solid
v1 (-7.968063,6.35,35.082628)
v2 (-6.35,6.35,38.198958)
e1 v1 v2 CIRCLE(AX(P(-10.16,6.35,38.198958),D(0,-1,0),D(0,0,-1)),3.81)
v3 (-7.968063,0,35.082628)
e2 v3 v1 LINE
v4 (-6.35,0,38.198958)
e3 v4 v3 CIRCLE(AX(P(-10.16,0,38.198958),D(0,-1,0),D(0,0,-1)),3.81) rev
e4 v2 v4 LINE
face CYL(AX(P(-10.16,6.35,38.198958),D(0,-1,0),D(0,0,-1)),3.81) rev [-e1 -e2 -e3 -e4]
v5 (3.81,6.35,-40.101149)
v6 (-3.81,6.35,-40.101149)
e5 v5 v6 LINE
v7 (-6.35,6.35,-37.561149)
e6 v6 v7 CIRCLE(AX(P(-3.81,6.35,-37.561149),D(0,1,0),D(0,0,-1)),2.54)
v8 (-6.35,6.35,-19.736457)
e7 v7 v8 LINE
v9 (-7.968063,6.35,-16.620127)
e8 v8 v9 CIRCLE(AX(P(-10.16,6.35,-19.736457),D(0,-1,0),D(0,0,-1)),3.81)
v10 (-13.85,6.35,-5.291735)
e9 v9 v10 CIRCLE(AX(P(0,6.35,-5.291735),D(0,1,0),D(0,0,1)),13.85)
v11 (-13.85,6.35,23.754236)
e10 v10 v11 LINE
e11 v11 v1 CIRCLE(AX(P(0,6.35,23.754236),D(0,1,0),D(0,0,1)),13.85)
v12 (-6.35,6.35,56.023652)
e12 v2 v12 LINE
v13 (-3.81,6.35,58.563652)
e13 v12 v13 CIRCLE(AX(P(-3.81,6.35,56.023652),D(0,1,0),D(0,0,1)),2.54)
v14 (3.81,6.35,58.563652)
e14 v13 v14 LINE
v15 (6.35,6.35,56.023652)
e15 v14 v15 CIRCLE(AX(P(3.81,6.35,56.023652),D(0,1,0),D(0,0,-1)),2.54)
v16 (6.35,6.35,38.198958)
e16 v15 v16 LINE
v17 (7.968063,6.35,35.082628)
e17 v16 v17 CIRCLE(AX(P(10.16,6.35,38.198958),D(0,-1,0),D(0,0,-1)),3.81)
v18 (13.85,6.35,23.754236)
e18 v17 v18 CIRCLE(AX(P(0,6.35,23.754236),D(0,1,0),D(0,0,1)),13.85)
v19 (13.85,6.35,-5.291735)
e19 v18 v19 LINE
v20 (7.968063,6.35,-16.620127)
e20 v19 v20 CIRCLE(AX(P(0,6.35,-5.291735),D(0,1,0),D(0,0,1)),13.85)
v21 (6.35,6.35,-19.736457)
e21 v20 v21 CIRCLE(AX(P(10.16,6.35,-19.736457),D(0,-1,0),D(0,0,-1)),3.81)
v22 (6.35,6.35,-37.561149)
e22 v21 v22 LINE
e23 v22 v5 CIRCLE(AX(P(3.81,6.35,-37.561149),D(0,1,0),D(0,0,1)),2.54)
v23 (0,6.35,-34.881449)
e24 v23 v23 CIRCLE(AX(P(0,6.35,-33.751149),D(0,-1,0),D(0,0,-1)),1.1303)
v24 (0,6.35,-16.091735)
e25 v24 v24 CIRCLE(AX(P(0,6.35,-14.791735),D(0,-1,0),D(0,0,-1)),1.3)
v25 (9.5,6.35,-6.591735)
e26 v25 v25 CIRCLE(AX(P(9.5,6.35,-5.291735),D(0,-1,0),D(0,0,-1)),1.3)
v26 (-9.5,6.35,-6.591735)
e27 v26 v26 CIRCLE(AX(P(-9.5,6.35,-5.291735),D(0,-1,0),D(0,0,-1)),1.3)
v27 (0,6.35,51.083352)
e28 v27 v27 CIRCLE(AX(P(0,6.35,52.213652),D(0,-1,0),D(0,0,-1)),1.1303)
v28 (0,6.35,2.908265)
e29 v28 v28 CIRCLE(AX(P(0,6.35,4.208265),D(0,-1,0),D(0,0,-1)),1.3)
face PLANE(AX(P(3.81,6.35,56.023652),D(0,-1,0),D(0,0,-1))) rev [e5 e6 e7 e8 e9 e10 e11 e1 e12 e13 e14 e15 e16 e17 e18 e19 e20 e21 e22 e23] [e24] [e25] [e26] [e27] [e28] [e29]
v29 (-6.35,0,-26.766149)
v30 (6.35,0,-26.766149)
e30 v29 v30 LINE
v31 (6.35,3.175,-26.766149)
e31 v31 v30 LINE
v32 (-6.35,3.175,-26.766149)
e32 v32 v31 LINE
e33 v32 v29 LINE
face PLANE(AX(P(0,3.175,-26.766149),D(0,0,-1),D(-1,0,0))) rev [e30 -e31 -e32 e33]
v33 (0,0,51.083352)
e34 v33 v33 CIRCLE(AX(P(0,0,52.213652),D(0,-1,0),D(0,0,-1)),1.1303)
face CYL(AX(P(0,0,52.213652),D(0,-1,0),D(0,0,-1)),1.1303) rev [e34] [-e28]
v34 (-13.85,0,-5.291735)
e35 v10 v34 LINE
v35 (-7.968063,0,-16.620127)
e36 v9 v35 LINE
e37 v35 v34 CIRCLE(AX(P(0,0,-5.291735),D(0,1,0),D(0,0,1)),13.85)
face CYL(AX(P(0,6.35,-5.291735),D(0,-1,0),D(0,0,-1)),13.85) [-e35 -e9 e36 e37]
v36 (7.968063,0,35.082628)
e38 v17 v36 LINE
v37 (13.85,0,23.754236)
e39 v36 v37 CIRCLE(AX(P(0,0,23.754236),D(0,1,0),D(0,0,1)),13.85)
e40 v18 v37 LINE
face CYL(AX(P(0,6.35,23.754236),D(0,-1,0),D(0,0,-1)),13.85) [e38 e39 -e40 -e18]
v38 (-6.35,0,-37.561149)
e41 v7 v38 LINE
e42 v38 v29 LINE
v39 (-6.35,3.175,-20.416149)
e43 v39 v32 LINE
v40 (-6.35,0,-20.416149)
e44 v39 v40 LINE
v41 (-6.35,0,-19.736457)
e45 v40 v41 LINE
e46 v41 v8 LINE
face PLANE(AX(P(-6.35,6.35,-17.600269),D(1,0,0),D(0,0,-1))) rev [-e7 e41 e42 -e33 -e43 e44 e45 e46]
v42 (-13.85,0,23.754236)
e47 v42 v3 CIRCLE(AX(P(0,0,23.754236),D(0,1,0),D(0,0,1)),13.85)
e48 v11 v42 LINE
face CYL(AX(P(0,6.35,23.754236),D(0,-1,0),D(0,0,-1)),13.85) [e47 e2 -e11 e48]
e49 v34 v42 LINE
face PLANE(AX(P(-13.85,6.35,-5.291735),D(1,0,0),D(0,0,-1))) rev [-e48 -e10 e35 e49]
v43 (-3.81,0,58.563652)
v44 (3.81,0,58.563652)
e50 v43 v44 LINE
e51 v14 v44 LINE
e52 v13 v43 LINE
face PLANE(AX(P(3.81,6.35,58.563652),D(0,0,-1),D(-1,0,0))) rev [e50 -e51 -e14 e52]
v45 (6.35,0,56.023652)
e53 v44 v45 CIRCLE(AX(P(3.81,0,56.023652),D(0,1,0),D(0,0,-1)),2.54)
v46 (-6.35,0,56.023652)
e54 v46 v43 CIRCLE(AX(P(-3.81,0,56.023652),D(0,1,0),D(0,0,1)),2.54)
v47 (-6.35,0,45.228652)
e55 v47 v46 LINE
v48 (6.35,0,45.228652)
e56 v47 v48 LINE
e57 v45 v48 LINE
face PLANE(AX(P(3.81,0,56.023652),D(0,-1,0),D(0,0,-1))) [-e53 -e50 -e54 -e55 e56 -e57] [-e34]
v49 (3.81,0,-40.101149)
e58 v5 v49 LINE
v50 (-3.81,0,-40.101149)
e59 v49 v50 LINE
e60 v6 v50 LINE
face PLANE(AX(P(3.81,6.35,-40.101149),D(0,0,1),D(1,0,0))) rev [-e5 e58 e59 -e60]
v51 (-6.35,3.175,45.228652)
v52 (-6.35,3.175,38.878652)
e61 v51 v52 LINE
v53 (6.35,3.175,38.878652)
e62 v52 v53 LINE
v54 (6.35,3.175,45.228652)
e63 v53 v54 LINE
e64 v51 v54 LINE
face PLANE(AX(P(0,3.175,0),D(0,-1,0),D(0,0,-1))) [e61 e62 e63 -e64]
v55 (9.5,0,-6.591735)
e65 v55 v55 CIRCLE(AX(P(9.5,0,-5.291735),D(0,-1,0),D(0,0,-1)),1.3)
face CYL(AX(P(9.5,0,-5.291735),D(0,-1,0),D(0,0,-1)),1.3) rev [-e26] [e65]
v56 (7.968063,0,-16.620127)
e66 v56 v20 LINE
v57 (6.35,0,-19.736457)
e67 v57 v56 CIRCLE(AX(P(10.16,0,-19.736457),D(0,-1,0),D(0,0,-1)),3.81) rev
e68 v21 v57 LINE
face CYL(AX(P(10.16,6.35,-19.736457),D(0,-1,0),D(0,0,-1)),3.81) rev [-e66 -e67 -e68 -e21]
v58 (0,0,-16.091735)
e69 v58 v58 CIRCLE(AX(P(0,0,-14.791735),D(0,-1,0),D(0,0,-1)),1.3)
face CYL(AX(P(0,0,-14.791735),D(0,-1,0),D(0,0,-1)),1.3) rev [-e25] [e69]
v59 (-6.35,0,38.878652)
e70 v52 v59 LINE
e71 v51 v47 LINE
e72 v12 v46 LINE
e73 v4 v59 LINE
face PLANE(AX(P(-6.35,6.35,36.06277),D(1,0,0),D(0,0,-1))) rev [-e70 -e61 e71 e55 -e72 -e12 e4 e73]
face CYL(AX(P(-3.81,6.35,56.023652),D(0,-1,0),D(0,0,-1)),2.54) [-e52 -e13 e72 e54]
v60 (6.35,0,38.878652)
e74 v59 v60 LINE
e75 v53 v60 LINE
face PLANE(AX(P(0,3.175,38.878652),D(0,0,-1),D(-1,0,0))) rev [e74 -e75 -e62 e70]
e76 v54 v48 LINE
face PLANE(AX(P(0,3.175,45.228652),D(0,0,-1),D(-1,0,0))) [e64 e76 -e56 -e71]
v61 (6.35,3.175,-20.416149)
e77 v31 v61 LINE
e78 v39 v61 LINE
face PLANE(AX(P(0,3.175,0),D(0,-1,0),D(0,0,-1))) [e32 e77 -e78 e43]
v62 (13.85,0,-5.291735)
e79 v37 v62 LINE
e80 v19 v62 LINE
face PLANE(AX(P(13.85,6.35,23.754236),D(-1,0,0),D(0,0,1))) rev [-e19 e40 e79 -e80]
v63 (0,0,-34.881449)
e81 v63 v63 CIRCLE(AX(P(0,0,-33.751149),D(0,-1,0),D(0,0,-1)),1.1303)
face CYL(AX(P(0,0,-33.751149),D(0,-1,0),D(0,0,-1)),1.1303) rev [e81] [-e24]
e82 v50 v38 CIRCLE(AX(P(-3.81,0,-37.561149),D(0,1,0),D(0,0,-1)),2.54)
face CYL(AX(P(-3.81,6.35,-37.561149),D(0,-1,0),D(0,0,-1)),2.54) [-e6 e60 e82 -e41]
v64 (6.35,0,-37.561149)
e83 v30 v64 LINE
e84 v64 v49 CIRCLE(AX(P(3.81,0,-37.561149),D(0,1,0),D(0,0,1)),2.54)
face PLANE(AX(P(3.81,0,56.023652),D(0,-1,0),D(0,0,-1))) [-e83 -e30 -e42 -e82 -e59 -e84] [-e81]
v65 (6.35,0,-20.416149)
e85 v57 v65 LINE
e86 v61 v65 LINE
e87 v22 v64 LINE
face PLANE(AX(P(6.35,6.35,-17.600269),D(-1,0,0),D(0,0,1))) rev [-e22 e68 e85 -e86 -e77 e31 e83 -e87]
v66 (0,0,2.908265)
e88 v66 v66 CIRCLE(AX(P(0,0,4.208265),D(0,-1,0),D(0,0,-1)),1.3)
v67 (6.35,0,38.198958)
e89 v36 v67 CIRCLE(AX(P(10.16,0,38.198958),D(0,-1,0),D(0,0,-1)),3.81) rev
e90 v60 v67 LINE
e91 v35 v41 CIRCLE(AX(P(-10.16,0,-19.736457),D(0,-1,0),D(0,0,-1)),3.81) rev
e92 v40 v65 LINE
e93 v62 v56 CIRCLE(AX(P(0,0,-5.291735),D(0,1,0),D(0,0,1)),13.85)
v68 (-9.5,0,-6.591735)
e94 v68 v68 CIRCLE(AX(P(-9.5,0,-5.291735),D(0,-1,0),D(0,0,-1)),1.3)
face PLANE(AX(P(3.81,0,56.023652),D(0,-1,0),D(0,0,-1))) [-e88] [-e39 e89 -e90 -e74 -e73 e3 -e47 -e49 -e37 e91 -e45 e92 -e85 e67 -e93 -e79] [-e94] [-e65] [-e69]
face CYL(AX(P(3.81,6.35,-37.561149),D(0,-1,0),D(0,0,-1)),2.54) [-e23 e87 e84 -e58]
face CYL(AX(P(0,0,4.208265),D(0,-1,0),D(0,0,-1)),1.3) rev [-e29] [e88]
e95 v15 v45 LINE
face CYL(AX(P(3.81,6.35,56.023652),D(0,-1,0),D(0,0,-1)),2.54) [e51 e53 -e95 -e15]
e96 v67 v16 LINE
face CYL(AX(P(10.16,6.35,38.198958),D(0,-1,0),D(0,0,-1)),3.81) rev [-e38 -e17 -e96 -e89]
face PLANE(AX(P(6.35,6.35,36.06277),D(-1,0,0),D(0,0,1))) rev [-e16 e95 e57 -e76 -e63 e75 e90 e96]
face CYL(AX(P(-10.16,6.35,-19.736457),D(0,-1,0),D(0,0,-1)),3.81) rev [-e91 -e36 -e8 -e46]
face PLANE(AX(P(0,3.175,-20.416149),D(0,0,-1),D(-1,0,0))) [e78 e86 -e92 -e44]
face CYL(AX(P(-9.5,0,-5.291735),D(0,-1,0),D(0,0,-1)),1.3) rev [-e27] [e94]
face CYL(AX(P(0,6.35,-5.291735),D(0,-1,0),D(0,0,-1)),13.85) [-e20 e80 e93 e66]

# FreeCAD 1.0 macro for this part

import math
import FreeCAD as App
import Part
import Sketcher

V = App.Vector
Q = App.Units.Quantity


def edges_at(feature, points):
    """Names of the edges that pass closest to the given points."""
    edges = feature.Shape.Edges
    near = lambda p: min(range(len(edges)), key=lambda i: edges[i].distToShape(Part.Vertex(*p))[0])
    return sorted({f"Edge{near(p) + 1}" for p in points})


def add_polygon(sketch, points):
    """Adds a closed chain of lines whose ends are joined by coincident constraints."""
    first, n = sketch.GeometryCount, len(points)
    for a, b in zip(points, points[1:] + points[:1]):
        sketch.addGeometry(Part.LineSegment(App.Vector(*a, 0), App.Vector(*b, 0)), False)
    for i in range(n):
        sketch.addConstraint(Sketcher.Constraint("Coincident", first + i, 2, first + (i + 1) % n, 1))

doc = App.newDocument("Part")
body = doc.addObject("PartDesign::Body", "Body")

# Sketch on XZ plane
sketch1 = doc.addObject("Sketcher::SketchObject", "Sketch")
body.addObject(sketch1)
sketch1.AttachmentSupport = (doc.XZ_Plane, [""])
sketch1.MapMode = "FlatFace"
sketch1.addGeometry(Part.LineSegment(V(13.9, 23.8, 0), V(13.9, -5.3, 0)), False)
sketch1.addGeometry(Part.ArcOfCircle(Part.Circle(V(0, -5.3, 0), V(0, 0, 1), 13.9), math.radians(-63), math.radians(0)), False)
sketch1.addGeometry(Part.LineSegment(V(6.3, -17.6, 0), V(6.3, -37.6, 0)), False)
sketch1.addGeometry(Part.ArcOfCircle(Part.Circle(V(3.8, -37.6, 0), V(0, 0, 1), 2.5), math.radians(-90), math.radians(0)), False)
sketch1.addGeometry(Part.LineSegment(V(3.8, -40.1, 0), V(-3.8, -40.1, 0)), False)
sketch1.addGeometry(Part.ArcOfCircle(Part.Circle(V(-3.8, -37.6, 0), V(0, 0, 1), 2.5), math.radians(-180), math.radians(-90)), False)
sketch1.addGeometry(Part.LineSegment(V(-6.3, -37.6, 0), V(-6.3, -17.6, 0)), False)
sketch1.addGeometry(Part.ArcOfCircle(Part.Circle(V(0, -5.3, 0), V(0, 0, 1), 13.9), math.radians(-180), math.radians(-117)), False)
sketch1.addGeometry(Part.LineSegment(V(-13.9, -5.3, 0), V(-13.9, 23.8, 0)), False)
sketch1.addGeometry(Part.ArcOfCircle(Part.Circle(V(0, 23.8, 0), V(0, 0, 1), 13.9), math.radians(117), math.radians(180)), False)
sketch1.addGeometry(Part.LineSegment(V(-6.3, 36.1, 0), V(-6.3, 56, 0)), False)
sketch1.addGeometry(Part.ArcOfCircle(Part.Circle(V(-3.8, 56, 0), V(0, 0, 1), 2.5), math.radians(90), math.radians(180)), False)
sketch1.addGeometry(Part.LineSegment(V(-3.8, 58.6, 0), V(3.8, 58.6, 0)), False)
sketch1.addGeometry(Part.ArcOfCircle(Part.Circle(V(3.8, 56, 0), V(0, 0, 1), 2.5), math.radians(0), math.radians(90)), False)
sketch1.addGeometry(Part.LineSegment(V(6.3, 56, 0), V(6.3, 36.1, 0)), False)
sketch1.addGeometry(Part.ArcOfCircle(Part.Circle(V(0, 23.8, 0), V(0, 0, 1), 13.9), math.radians(0), math.radians(63)), False)
sketch1.addConstraint(Sketcher.Constraint("Tangent", 0, 2, 1, 2))
sketch1.addConstraint(Sketcher.Constraint("Coincident", 1, 1, 2, 1))
sketch1.addConstraint(Sketcher.Constraint("Tangent", 2, 2, 3, 2))
sketch1.addConstraint(Sketcher.Constraint("Tangent", 3, 1, 4, 1))
sketch1.addConstraint(Sketcher.Constraint("Tangent", 4, 2, 5, 2))
sketch1.addConstraint(Sketcher.Constraint("Tangent", 5, 1, 6, 1))
sketch1.addConstraint(Sketcher.Constraint("Coincident", 6, 2, 7, 2))
sketch1.addConstraint(Sketcher.Constraint("Tangent", 7, 1, 8, 1))
sketch1.addConstraint(Sketcher.Constraint("Tangent", 8, 2, 9, 2))
sketch1.addConstraint(Sketcher.Constraint("Coincident", 9, 1, 10, 1))
sketch1.addConstraint(Sketcher.Constraint("Tangent", 10, 2, 11, 2))
sketch1.addConstraint(Sketcher.Constraint("Tangent", 11, 1, 12, 1))
sketch1.addConstraint(Sketcher.Constraint("Tangent", 12, 2, 13, 2))
sketch1.addConstraint(Sketcher.Constraint("Tangent", 13, 1, 14, 1))
sketch1.addConstraint(Sketcher.Constraint("Coincident", 14, 2, 15, 2))
sketch1.addConstraint(Sketcher.Constraint("Tangent", 15, 1, 0, 1))
sketch1.addConstraint(Sketcher.Constraint("Vertical", 0))
sketch1.addConstraint(Sketcher.Constraint("Vertical", 2))
sketch1.addConstraint(Sketcher.Constraint("Horizontal", 4))
sketch1.addConstraint(Sketcher.Constraint("Vertical", 6))
sketch1.addConstraint(Sketcher.Constraint("Vertical", 8))
sketch1.addConstraint(Sketcher.Constraint("Vertical", 10))
sketch1.addConstraint(Sketcher.Constraint("Horizontal", 12))
sketch1.addConstraint(Sketcher.Constraint("Vertical", 14))
sketch1.addConstraint(Sketcher.Constraint("Coincident", 7, 3, 1, 3))
sketch1.addConstraint(Sketcher.Constraint("Coincident", 15, 3, 9, 3))
sketch1.addConstraint(Sketcher.Constraint("Equal", 3, 5))
sketch1.addConstraint(Sketcher.Constraint("Equal", 1, 7))
sketch1.addConstraint(Sketcher.Constraint("Equal", 7, 9))
sketch1.addConstraint(Sketcher.Constraint("Equal", 5, 11))
sketch1.addConstraint(Sketcher.Constraint("Equal", 11, 13))
sketch1.addConstraint(Sketcher.Constraint("Symmetric", 1, 1, 6, 2, -2))
sketch1.addConstraint(Sketcher.Constraint("Horizontal", 9, 1, 14, 2))
sketch1.addConstraint(Sketcher.Constraint("Vertical", 5, 3, 11, 3))
sketch1.addConstraint(Sketcher.Constraint("Equal", 6, 10))
sketch1.addConstraint(Sketcher.Constraint("Radius", 3, Q("0.1 in")))
sketch1.addConstraint(Sketcher.Constraint("DistanceX", 4, 2, 4, 1, Q("0.3 in")))
sketch1.addConstraint(Sketcher.Constraint("Radius", 1, 13.85))
sketch1.addConstraint(Sketcher.Constraint("DistanceY", 0, 2, 0, 1, 29.045971))
sketch1.addConstraint(Sketcher.Constraint("DistanceY", 2, 2, 2, 1, 19.960881))
sketch1.addConstraint(Sketcher.Constraint("DistanceY", 3, 3, -1, 1, 37.561149))
pad1 = doc.addObject("PartDesign::Pad", "Pad")
body.addObject(pad1)
pad1.Profile = sketch1
pad1.Length = Q("0.25 in")
pad1.Reversed = True

# Sketch on XZ plane
sketch2 = doc.addObject("Sketcher::SketchObject", "Sketch001")
body.addObject(sketch2)
sketch2.AttachmentSupport = (doc.XZ_Plane, [""])
sketch2.MapMode = "FlatFace"
add_polygon(sketch2, [(-6, -20), (-6, -27), (6, -27), (6, -20)])  # lines 0-3
add_polygon(sketch2, [(-6, 45), (-6, 39), (6, 39), (6, 45)])  # lines 4-7
sketch2.addConstraint(Sketcher.Constraint("Vertical", 0))
sketch2.addConstraint(Sketcher.Constraint("Horizontal", 1))
sketch2.addConstraint(Sketcher.Constraint("Vertical", 2))
sketch2.addConstraint(Sketcher.Constraint("Horizontal", 3))
sketch2.addConstraint(Sketcher.Constraint("Vertical", 4))
sketch2.addConstraint(Sketcher.Constraint("Horizontal", 5))
sketch2.addConstraint(Sketcher.Constraint("Vertical", 6))
sketch2.addConstraint(Sketcher.Constraint("Horizontal", 7))
sketch2.addConstraint(Sketcher.Constraint("Vertical", 3, 2, 4, 2))
sketch2.addConstraint(Sketcher.Constraint("Vertical", 2, 2, 5, 2))
sketch2.addConstraint(Sketcher.Constraint("Equal", 2, 4))
sketch2.addConstraint(Sketcher.Constraint("DistanceX", 1, 1, 1, 2, Q("0.5 in")))
sketch2.addConstraint(Sketcher.Constraint("DistanceY", 0, 2, 0, 1, Q("0.25 in")))
sketch2.addConstraint(Sketcher.Constraint("DistanceX", 0, 2, -1, 1, Q("0.25 in")))
sketch2.addConstraint(Sketcher.Constraint("DistanceY", 3, 2, 4, 2, 59.294801))
sketch2.addConstraint(Sketcher.Constraint("DistanceY", 0, 2, -1, 1, 26.766149))
pocket1 = doc.addObject("PartDesign::Pocket", "Pocket")
body.addObject(pocket1)
pocket1.Profile = sketch2
pocket1.Length = Q("0.125 in")

# Sketch on XZ plane
sketch3 = doc.addObject("Sketcher::SketchObject", "Sketch002")
body.addObject(sketch3)
sketch3.AttachmentSupport = (doc.XZ_Plane, [""])
sketch3.MapMode = "FlatFace"
sketch3.addGeometry(Part.Circle(V(0, 52.2, 0), V(0, 0, 1), 1.1), False)
sketch3.addGeometry(Part.Circle(V(0, -33.8, 0), V(0, 0, 1), 1.1), False)
sketch3.addConstraint(Sketcher.Constraint("Equal", 0, 1))
sketch3.addConstraint(Sketcher.Constraint("PointOnObject", 0, 3, -2))
sketch3.addConstraint(Sketcher.Constraint("PointOnObject", 1, 3, -2))
sketch3.addConstraint(Sketcher.Constraint("Diameter", 0, Q("0.089 in")))
sketch3.addConstraint(Sketcher.Constraint("DistanceY", 1, 3, 0, 3, 85.964801))
sketch3.addConstraint(Sketcher.Constraint("DistanceY", -1, 1, 0, 3, 52.213652))
doc.recompute()
hole = doc.addObject("PartDesign::Hole", "Hole")
body.addObject(hole)
hole.Profile = sketch3
hole.ThreadType = "None"
hole.Diameter = Q("0.089 in")
hole.DepthType = "ThroughAll"

# Sketch on XZ plane
sketch4 = doc.addObject("Sketcher::SketchObject", "Sketch003")
body.addObject(sketch4)
sketch4.AttachmentSupport = (doc.XZ_Plane, [""])
sketch4.MapMode = "FlatFace"
sketch4.addGeometry(Part.Circle(V(-9.5, -5.3, 0), V(0, 0, 1), 1.3), False)
sketch4.addGeometry(Part.Circle(V(0, -14.8, 0), V(0, 0, 1), 1.3), False)
sketch4.addGeometry(Part.Circle(V(9.5, -5.3, 0), V(0, 0, 1), 1.3), False)
sketch4.addGeometry(Part.Circle(V(0, 4.2, 0), V(0, 0, 1), 1.3), False)
sketch4.addConstraint(Sketcher.Constraint("Equal", 0, 1))
sketch4.addConstraint(Sketcher.Constraint("Equal", 1, 2))
sketch4.addConstraint(Sketcher.Constraint("Equal", 2, 3))
sketch4.addConstraint(Sketcher.Constraint("Symmetric", 0, 3, 2, 3, -2))
sketch4.addConstraint(Sketcher.Constraint("PointOnObject", 1, 3, -2))
sketch4.addConstraint(Sketcher.Constraint("PointOnObject", 3, 3, -2))
sketch4.addConstraint(Sketcher.Constraint("Diameter", 0, 2.6))
sketch4.addConstraint(Sketcher.Constraint("DistanceX", 0, 3, -1, 1, 9.5))
sketch4.addConstraint(Sketcher.Constraint("DistanceY", 1, 3, 0, 3, 9.5))
sketch4.addConstraint(Sketcher.Constraint("DistanceY", 0, 3, 3, 3, 9.5))
sketch4.addConstraint(Sketcher.Constraint("DistanceY", 0, 3, -1, 1, 5.291735))
doc.recompute()
hole2 = doc.addObject("PartDesign::Hole", "Hole001")
body.addObject(hole2)
hole2.Profile = sketch4
hole2.ThreadType = "None"
hole2.Diameter = 2.6
hole2.DepthType = "ThroughAll"
doc.recompute()

fillet = doc.addObject("PartDesign::Fillet", "Fillet")
body.addObject(fillet)
fillet.Base = (hole2, edges_at(hole2, [
    (-6.35, 3.175, 36.063),
    (-6.35, 3.175, -17.6),
    (6.35, 3.175, -17.6),
    (6.35, 3.175, 36.063),
]))
fillet.Radius = Q("0.15 in")

doc.recompute()
